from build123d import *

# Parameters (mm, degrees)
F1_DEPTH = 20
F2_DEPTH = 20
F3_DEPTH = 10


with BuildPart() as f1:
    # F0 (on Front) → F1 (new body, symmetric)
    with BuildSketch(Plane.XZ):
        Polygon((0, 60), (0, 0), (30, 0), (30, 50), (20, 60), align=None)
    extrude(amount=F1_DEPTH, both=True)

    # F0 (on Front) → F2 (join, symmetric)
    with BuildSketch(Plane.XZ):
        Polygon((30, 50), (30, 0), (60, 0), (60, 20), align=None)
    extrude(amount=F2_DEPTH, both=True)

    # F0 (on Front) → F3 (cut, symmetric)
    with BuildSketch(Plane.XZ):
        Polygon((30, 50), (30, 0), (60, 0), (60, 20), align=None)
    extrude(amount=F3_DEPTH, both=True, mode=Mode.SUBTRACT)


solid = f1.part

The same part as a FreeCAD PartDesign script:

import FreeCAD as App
import Part
import Sketcher
from FreeCAD import Vector

doc = App.newDocument("Part")
body = doc.addObject("PartDesign::Body", "Body")

# Sketch on XZ plane
sketch1 = body.newObject("Sketcher::SketchObject", "Sketch")
sketch1.AttachmentSupport = (doc.getObject("XZ_Plane"), [""])
sketch1.MapMode = "FlatFace"
sketch1.addGeometry([
    Part.LineSegment(Vector(0, 60, 0), Vector(0, 0, 0)),  # 0
    Part.LineSegment(Vector(0, 0, 0), Vector(30, 0, 0)),  # 1
    Part.LineSegment(Vector(30, 0, 0), Vector(30, 50, 0)),  # 2
    Part.LineSegment(Vector(30, 50, 0), Vector(20, 60, 0)),  # 3
    Part.LineSegment(Vector(20, 60, 0), Vector(0, 60, 0)),  # 4
], False)
sketch1.addConstraint([
    Sketcher.Constraint("Coincident", 0, 2, 1, 1),
    Sketcher.Constraint("Coincident", 1, 2, 2, 1),
    Sketcher.Constraint("Coincident", 2, 2, 3, 1),
    Sketcher.Constraint("Coincident", 3, 2, 4, 1),
    Sketcher.Constraint("Coincident", 4, 2, 0, 1),
    Sketcher.Constraint("Vertical", 0),
    Sketcher.Constraint("Horizontal", 1),
    Sketcher.Constraint("Vertical", 2),
    Sketcher.Constraint("Horizontal", 4),
    Sketcher.Constraint("Coincident", 0, 2, -1, 1),
    Sketcher.Constraint("DistanceX", 1, 1, 1, 2, 30.0),
    Sketcher.Constraint("DistanceX", 4, 2, 4, 1, 20.0),
    Sketcher.Constraint("DistanceY", 0, 2, 0, 1, 60.0),
    Sketcher.Constraint("DistanceY", 2, 1, 2, 2, 50.0),
])
pad1 = body.newObject("PartDesign::Pad", "Pad")
pad1.Profile = sketch1
pad1.Length = 40
pad1.Midplane = True

# Sketch on XZ plane
sketch2 = body.newObject("Sketcher::SketchObject", "Sketch001")
sketch2.AttachmentSupport = (doc.getObject("XZ_Plane"), [""])
sketch2.MapMode = "FlatFace"
sketch2.addGeometry([
    Part.LineSegment(Vector(30, 50, 0), Vector(30, 0, 0)),
    Part.LineSegment(Vector(30, 0, 0), Vector(60, 0, 0)),
    Part.LineSegment(Vector(60, 0, 0), Vector(60, 20, 0)),
    Part.LineSegment(Vector(60, 20, 0), Vector(30, 50, 0)),
], False)
sketch2.addConstraint([
    Sketcher.Constraint("Coincident", 0, 2, 1, 1),
    Sketcher.Constraint("Coincident", 1, 2, 2, 1),
    Sketcher.Constraint("Coincident", 2, 2, 3, 1),
    Sketcher.Constraint("Coincident", 3, 2, 0, 1),
    Sketcher.Constraint("Vertical", 0),
    Sketcher.Constraint("Horizontal", 1),
    Sketcher.Constraint("Vertical", 2),
    Sketcher.Constraint("PointOnObject", 0, 2, -1),
    Sketcher.Constraint("DistanceX", 1, 1, 1, 2, 30.0),
    Sketcher.Constraint("DistanceY", 0, 2, 0, 1, 50.0),
    Sketcher.Constraint("DistanceY", 2, 1, 2, 2, 20.0),
    Sketcher.Constraint("DistanceX", -1, 1, 0, 2, 30.0),
])
pad2 = body.newObject("PartDesign::Pad", "Pad001")
pad2.Profile = sketch2
pad2.Length = 40
pad2.Midplane = True

# Sketch on XZ plane
sketch3 = body.newObject("Sketcher::SketchObject", "Sketch002")
sketch3.AttachmentSupport = (doc.getObject("XZ_Plane"), [""])
sketch3.MapMode = "FlatFace"
sketch3.addGeometry([
    Part.LineSegment(Vector(30, 50, 0), Vector(30, 0, 0)),
    Part.LineSegment(Vector(30, 0, 0), Vector(60, 0, 0)),
    Part.LineSegment(Vector(60, 0, 0), Vector(60, 20, 0)),
    Part.LineSegment(Vector(60, 20, 0), Vector(30, 50, 0)),
], False)
sketch3.addConstraint([
    Sketcher.Constraint("Coincident", 0, 2, 1, 1),
    Sketcher.Constraint("Coincident", 1, 2, 2, 1),
    Sketcher.Constraint("Coincident", 2, 2, 3, 1),
    Sketcher.Constraint("Coincident", 3, 2, 0, 1),
    Sketcher.Constraint("Vertical", 0),
    Sketcher.Constraint("Horizontal", 1),
    Sketcher.Constraint("Vertical", 2),
    Sketcher.Constraint("PointOnObject", 0, 2, -1),
    Sketcher.Constraint("DistanceX", 1, 1, 1, 2, 30.0),
    Sketcher.Constraint("DistanceY", 0, 2, 0, 1, 50.0),
    Sketcher.Constraint("DistanceY", 2, 1, 2, 2, 20.0),
    Sketcher.Constraint("DistanceX", -1, 1, 0, 2, 30.0),
])
pocket1 = body.newObject("PartDesign::Pocket", "Pocket")
pocket1.Profile = sketch3
pocket1.Length = 20
pocket1.Midplane = True

doc.recompute()
